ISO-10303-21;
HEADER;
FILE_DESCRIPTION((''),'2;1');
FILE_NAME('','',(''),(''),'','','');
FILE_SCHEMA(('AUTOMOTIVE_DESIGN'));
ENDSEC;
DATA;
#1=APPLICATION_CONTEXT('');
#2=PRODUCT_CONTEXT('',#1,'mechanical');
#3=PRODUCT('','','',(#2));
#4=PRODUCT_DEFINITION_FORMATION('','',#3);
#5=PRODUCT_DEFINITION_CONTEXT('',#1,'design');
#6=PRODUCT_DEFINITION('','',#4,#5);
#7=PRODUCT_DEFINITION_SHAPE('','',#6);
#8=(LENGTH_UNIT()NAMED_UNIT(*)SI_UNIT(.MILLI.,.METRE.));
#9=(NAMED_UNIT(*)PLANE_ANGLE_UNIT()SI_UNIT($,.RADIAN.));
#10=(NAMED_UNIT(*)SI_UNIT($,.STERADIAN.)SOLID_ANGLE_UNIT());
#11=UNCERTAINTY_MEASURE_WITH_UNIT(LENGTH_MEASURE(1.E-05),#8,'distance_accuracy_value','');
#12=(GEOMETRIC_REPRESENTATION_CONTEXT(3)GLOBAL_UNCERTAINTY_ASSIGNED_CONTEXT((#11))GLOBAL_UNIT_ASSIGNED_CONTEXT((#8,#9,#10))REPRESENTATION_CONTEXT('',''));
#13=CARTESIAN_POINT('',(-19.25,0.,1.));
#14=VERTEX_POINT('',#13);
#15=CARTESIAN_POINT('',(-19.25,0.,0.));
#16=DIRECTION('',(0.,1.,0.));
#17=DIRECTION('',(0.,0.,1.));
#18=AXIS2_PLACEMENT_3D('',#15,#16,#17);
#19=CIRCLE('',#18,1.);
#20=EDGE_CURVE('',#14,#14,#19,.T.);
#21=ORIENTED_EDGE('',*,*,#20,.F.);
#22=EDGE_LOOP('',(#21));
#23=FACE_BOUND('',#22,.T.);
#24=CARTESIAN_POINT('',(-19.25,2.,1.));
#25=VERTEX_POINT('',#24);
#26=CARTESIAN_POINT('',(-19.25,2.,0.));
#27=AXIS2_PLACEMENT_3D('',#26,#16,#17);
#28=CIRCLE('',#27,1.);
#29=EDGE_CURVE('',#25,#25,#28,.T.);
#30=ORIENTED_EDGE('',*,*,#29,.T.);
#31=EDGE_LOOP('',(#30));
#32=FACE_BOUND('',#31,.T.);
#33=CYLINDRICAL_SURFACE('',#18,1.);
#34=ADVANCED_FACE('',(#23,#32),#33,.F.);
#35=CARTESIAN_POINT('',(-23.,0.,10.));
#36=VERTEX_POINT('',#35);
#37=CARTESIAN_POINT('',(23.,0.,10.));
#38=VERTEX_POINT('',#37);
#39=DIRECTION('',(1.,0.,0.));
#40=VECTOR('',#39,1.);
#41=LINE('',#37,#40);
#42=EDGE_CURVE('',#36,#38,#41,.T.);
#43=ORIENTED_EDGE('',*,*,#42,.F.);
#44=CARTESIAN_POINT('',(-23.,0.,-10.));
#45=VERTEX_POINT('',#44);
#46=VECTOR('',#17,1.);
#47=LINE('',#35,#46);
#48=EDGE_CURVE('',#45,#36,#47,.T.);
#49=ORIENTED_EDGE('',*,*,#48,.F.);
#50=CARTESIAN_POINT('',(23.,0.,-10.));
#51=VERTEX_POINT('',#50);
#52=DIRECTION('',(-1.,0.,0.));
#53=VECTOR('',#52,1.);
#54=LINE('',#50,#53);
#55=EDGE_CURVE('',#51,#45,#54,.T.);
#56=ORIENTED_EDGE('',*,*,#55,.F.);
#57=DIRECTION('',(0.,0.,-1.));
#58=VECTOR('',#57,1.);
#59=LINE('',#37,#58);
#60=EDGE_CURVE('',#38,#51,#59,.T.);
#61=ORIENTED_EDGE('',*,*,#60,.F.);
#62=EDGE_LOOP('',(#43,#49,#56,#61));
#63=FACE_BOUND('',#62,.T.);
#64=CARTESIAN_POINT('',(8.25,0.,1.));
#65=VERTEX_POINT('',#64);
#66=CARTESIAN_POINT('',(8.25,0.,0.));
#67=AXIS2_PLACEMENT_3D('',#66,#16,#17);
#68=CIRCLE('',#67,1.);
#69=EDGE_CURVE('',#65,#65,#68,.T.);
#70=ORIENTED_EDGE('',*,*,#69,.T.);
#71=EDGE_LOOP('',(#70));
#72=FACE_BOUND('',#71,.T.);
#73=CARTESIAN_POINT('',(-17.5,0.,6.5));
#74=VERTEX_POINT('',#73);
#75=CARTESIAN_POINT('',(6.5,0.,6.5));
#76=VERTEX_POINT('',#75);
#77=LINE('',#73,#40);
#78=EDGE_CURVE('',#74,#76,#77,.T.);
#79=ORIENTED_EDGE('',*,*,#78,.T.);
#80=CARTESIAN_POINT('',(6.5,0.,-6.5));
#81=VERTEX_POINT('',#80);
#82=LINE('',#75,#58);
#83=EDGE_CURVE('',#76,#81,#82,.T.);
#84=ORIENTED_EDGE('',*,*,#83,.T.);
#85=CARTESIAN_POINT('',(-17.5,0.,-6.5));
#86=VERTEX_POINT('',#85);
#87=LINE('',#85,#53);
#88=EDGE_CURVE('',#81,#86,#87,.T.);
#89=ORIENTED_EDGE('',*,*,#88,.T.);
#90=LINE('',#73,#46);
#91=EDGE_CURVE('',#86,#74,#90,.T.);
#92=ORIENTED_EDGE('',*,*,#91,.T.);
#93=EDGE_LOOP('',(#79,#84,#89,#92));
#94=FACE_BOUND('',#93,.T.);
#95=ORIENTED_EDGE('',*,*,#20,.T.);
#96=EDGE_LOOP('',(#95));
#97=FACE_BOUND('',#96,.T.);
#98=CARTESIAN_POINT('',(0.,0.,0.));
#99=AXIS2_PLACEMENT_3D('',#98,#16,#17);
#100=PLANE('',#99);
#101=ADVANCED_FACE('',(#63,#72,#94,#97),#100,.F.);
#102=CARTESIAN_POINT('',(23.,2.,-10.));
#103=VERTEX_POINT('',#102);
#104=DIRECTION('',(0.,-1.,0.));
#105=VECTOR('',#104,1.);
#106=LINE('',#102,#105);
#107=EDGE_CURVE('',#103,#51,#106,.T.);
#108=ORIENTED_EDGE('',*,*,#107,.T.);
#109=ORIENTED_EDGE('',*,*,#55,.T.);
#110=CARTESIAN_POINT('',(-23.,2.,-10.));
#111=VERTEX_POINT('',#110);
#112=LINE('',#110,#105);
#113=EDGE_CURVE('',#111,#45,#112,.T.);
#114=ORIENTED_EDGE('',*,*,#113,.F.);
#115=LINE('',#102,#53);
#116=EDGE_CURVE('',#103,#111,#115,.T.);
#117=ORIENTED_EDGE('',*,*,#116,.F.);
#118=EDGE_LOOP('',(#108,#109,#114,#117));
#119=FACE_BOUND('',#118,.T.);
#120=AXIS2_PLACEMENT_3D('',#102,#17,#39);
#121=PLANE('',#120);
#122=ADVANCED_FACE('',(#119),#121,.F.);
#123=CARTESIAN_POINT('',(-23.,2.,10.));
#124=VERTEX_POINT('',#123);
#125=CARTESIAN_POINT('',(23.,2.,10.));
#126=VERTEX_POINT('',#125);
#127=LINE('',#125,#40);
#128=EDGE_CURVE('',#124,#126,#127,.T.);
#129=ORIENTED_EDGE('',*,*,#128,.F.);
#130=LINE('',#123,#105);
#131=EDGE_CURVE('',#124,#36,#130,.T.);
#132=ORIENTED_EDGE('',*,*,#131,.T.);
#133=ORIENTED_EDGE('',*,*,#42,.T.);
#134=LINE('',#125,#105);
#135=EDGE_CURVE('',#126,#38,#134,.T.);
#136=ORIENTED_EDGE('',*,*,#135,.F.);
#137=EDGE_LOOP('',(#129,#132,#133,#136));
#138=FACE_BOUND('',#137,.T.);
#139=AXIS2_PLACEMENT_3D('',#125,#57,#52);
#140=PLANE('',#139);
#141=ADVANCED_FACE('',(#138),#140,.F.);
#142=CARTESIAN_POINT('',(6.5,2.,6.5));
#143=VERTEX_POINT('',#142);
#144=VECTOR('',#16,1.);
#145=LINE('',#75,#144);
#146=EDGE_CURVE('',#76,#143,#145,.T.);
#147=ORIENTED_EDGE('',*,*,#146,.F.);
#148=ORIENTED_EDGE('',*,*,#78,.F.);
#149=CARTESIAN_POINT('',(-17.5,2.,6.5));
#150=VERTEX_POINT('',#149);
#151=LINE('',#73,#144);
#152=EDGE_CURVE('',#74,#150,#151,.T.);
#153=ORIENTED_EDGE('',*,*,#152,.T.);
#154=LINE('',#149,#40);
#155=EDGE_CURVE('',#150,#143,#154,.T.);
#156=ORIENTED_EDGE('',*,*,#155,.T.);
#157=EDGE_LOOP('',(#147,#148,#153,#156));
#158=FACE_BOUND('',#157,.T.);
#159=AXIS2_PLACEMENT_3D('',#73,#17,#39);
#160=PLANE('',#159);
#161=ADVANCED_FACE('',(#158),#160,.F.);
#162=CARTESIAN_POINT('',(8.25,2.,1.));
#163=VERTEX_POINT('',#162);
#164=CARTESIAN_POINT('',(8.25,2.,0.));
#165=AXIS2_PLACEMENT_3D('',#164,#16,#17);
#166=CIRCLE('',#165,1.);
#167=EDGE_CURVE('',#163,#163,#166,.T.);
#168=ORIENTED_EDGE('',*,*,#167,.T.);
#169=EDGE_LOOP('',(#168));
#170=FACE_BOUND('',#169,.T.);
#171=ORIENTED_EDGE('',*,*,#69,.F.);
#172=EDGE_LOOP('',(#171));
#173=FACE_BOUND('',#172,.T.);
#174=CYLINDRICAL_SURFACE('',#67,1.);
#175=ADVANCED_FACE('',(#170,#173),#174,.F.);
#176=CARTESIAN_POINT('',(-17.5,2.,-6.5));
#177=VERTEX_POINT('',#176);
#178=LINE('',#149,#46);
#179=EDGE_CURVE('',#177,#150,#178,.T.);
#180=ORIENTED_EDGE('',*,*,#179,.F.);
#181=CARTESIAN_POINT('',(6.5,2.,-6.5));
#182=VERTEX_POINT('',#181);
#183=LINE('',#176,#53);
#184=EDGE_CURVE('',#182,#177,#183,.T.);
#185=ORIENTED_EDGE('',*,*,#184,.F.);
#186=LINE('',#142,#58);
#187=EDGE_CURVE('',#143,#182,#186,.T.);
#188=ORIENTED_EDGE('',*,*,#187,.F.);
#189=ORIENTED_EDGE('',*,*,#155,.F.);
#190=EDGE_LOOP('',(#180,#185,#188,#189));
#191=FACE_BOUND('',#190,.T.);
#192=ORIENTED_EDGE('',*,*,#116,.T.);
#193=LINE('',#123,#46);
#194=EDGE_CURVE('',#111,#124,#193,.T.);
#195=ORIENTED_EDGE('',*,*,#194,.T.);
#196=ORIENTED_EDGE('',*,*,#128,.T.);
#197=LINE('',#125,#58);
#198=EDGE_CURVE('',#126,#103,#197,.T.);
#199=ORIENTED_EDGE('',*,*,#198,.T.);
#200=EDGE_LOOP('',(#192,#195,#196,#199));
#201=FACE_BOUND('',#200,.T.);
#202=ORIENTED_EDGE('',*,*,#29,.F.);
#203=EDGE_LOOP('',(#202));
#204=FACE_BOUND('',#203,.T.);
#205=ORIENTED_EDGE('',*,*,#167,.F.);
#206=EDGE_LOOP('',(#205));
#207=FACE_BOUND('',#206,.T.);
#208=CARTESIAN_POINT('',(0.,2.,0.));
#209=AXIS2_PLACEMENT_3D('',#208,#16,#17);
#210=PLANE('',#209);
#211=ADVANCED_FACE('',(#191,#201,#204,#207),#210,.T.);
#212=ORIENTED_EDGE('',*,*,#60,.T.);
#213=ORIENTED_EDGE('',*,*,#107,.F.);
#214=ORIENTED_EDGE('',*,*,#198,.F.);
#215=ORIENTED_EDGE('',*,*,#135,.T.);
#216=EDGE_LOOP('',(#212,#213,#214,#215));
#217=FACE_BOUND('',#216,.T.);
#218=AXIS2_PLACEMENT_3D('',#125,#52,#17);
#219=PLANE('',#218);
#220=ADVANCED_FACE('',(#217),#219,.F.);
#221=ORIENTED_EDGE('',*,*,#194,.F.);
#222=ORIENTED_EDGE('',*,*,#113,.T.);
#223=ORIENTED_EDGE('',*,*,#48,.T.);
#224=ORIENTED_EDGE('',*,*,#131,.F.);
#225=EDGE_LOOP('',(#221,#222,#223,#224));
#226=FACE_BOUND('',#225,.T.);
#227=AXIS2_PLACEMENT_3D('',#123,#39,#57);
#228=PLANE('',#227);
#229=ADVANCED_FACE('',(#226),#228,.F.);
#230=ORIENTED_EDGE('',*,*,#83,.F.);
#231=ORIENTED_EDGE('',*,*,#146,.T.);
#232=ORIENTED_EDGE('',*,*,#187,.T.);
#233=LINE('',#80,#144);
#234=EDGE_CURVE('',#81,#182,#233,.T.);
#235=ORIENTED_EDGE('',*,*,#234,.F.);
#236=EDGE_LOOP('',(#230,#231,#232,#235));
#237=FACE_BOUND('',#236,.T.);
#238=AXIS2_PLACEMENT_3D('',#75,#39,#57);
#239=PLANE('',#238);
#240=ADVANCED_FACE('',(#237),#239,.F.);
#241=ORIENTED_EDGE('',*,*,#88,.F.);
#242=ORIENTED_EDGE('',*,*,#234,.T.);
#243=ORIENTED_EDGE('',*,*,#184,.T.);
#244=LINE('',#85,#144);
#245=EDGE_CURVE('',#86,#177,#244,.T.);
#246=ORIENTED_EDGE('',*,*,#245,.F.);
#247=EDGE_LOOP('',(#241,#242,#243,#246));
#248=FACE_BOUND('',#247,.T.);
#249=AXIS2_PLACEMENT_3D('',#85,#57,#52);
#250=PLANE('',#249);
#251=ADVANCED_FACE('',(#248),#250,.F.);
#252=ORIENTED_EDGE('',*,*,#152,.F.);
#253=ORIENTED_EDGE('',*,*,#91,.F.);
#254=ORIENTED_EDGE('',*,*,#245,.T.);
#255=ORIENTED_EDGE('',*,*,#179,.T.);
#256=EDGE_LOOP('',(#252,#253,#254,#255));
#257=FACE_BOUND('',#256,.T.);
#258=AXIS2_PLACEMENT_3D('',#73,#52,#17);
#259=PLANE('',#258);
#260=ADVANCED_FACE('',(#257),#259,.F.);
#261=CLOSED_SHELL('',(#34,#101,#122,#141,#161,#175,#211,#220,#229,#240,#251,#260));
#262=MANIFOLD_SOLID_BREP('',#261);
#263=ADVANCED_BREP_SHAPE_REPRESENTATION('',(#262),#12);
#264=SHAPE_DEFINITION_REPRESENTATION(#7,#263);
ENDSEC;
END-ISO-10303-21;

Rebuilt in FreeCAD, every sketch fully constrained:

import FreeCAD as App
import Part
import Sketcher

V = App.Vector

doc = App.newDocument("Part")
body = doc.addObject("PartDesign::Body", "Body")

sketch1 = body.newObject("Sketcher::SketchObject", "Sketch")
sketch1.AttachmentSupport = (doc.getObject("XZ_Plane"), [""])
sketch1.MapMode = "FlatFace"
sketch1.addGeometry(Part.LineSegment(V(-23, -10, 0), V(-23, 10, 0)), False)
sketch1.addGeometry(Part.LineSegment(V(-23, 10, 0), V(23, 10, 0)), False)
sketch1.addGeometry(Part.LineSegment(V(23, 10, 0), V(23, -10, 0)), False)
sketch1.addGeometry(Part.LineSegment(V(23, -10, 0), V(-23, -10, 0)), False)
sketch1.addConstraint(Sketcher.Constraint("Coincident", 0, 2, 1, 1))
sketch1.addConstraint(Sketcher.Constraint("Coincident", 1, 2, 2, 1))
sketch1.addConstraint(Sketcher.Constraint("Coincident", 2, 2, 3, 1))
sketch1.addConstraint(Sketcher.Constraint("Coincident", 3, 2, 0, 1))
sketch1.addConstraint(Sketcher.Constraint("Vertical", 0))
sketch1.addConstraint(Sketcher.Constraint("Horizontal", 1))
sketch1.addConstraint(Sketcher.Constraint("Vertical", 2))
sketch1.addConstraint(Sketcher.Constraint("Horizontal", 3))
sketch1.addConstraint(Sketcher.Constraint("Symmetric", 0, 2, 2, 2, -1, 1))
sketch1.addConstraint(Sketcher.Constraint("DistanceX", 1, 1, 1, 2, 46.0))
sketch1.addConstraint(Sketcher.Constraint("DistanceY", 0, 1, 0, 2, 20.0))
pad1 = body.newObject("PartDesign::Pad", "Pad")
pad1.Profile = sketch1
pad1.Length = 2
pad1.Reversed = True

sketch2 = body.newObject("Sketcher::SketchObject", "Sketch001")
sketch2.AttachmentSupport = (doc.getObject("XZ_Plane"), [""])
sketch2.MapMode = "FlatFace"
sketch2.AttachmentOffset = App.Placement(V(0, 0, -2), App.Rotation())
sketch2.addGeometry(Part.LineSegment(V(-18, -6, 0), V(-18, 6, 0)), False)
sketch2.addGeometry(Part.LineSegment(V(-18, 6, 0), V(6, 6, 0)), False)
sketch2.addGeometry(Part.LineSegment(V(6, 6, 0), V(6, -6, 0)), False)
sketch2.addGeometry(Part.LineSegment(V(6, -6, 0), V(-18, -6, 0)), False)
sketch2.addConstraint(Sketcher.Constraint("Coincident", 0, 2, 1, 1))
sketch2.addConstraint(Sketcher.Constraint("Coincident", 1, 2, 2, 1))
sketch2.addConstraint(Sketcher.Constraint("Coincident", 2, 2, 3, 1))
sketch2.addConstraint(Sketcher.Constraint("Coincident", 3, 2, 0, 1))
sketch2.addConstraint(Sketcher.Constraint("Vertical", 0))
sketch2.addConstraint(Sketcher.Constraint("Horizontal", 1))
sketch2.addConstraint(Sketcher.Constraint("Vertical", 2))
sketch2.addConstraint(Sketcher.Constraint("Horizontal", 3))
sketch2.addConstraint(Sketcher.Constraint("DistanceX", 1, 1, 1, 2, 24.0))
sketch2.addConstraint(Sketcher.Constraint("DistanceY", 0, 1, 0, 2, 13.0))
sketch2.addConstraint(Sketcher.Constraint("DistanceX", 0, 2, -1, 1, 17.5))
sketch2.addConstraint(Sketcher.Constraint("DistanceY", -1, 1, 0, 2, 6.5))
pocket1 = body.newObject("PartDesign::Pocket", "Pocket")
pocket1.Profile = sketch2
pocket1.Length = 2
pocket1.Reversed = True

sketch3 = body.newObject("Sketcher::SketchObject", "Sketch002")
sketch3.AttachmentSupport = (doc.getObject("XZ_Plane"), [""])
sketch3.MapMode = "FlatFace"
sketch3.AttachmentOffset = App.Placement(V(0, 0, -2), App.Rotation())
sketch3.addGeometry(Part.Circle(V(-19.2, 0, 0), V(0, 0, 1), 1), False)
sketch3.addGeometry(Part.Circle(V(8.2, 0, 0), V(0, 0, 1), 1), False)
sketch3.addConstraint(Sketcher.Constraint("Equal", 0, 1))
sketch3.addConstraint(Sketcher.Constraint("PointOnObject", 0, 3, -1))
sketch3.addConstraint(Sketcher.Constraint("PointOnObject", 1, 3, -1))
sketch3.addConstraint(Sketcher.Constraint("Diameter", 0, 2.0))
sketch3.addConstraint(Sketcher.Constraint("DistanceX", 0, 3, 1, 3, 27.5))
sketch3.addConstraint(Sketcher.Constraint("DistanceX", 0, 3, -1, 1, 19.25))
pocket2 = body.newObject("PartDesign::Pocket", "Pocket001")
pocket2.Profile = sketch3
pocket2.Length = 2
pocket2.Reversed = True

doc.recompute()
